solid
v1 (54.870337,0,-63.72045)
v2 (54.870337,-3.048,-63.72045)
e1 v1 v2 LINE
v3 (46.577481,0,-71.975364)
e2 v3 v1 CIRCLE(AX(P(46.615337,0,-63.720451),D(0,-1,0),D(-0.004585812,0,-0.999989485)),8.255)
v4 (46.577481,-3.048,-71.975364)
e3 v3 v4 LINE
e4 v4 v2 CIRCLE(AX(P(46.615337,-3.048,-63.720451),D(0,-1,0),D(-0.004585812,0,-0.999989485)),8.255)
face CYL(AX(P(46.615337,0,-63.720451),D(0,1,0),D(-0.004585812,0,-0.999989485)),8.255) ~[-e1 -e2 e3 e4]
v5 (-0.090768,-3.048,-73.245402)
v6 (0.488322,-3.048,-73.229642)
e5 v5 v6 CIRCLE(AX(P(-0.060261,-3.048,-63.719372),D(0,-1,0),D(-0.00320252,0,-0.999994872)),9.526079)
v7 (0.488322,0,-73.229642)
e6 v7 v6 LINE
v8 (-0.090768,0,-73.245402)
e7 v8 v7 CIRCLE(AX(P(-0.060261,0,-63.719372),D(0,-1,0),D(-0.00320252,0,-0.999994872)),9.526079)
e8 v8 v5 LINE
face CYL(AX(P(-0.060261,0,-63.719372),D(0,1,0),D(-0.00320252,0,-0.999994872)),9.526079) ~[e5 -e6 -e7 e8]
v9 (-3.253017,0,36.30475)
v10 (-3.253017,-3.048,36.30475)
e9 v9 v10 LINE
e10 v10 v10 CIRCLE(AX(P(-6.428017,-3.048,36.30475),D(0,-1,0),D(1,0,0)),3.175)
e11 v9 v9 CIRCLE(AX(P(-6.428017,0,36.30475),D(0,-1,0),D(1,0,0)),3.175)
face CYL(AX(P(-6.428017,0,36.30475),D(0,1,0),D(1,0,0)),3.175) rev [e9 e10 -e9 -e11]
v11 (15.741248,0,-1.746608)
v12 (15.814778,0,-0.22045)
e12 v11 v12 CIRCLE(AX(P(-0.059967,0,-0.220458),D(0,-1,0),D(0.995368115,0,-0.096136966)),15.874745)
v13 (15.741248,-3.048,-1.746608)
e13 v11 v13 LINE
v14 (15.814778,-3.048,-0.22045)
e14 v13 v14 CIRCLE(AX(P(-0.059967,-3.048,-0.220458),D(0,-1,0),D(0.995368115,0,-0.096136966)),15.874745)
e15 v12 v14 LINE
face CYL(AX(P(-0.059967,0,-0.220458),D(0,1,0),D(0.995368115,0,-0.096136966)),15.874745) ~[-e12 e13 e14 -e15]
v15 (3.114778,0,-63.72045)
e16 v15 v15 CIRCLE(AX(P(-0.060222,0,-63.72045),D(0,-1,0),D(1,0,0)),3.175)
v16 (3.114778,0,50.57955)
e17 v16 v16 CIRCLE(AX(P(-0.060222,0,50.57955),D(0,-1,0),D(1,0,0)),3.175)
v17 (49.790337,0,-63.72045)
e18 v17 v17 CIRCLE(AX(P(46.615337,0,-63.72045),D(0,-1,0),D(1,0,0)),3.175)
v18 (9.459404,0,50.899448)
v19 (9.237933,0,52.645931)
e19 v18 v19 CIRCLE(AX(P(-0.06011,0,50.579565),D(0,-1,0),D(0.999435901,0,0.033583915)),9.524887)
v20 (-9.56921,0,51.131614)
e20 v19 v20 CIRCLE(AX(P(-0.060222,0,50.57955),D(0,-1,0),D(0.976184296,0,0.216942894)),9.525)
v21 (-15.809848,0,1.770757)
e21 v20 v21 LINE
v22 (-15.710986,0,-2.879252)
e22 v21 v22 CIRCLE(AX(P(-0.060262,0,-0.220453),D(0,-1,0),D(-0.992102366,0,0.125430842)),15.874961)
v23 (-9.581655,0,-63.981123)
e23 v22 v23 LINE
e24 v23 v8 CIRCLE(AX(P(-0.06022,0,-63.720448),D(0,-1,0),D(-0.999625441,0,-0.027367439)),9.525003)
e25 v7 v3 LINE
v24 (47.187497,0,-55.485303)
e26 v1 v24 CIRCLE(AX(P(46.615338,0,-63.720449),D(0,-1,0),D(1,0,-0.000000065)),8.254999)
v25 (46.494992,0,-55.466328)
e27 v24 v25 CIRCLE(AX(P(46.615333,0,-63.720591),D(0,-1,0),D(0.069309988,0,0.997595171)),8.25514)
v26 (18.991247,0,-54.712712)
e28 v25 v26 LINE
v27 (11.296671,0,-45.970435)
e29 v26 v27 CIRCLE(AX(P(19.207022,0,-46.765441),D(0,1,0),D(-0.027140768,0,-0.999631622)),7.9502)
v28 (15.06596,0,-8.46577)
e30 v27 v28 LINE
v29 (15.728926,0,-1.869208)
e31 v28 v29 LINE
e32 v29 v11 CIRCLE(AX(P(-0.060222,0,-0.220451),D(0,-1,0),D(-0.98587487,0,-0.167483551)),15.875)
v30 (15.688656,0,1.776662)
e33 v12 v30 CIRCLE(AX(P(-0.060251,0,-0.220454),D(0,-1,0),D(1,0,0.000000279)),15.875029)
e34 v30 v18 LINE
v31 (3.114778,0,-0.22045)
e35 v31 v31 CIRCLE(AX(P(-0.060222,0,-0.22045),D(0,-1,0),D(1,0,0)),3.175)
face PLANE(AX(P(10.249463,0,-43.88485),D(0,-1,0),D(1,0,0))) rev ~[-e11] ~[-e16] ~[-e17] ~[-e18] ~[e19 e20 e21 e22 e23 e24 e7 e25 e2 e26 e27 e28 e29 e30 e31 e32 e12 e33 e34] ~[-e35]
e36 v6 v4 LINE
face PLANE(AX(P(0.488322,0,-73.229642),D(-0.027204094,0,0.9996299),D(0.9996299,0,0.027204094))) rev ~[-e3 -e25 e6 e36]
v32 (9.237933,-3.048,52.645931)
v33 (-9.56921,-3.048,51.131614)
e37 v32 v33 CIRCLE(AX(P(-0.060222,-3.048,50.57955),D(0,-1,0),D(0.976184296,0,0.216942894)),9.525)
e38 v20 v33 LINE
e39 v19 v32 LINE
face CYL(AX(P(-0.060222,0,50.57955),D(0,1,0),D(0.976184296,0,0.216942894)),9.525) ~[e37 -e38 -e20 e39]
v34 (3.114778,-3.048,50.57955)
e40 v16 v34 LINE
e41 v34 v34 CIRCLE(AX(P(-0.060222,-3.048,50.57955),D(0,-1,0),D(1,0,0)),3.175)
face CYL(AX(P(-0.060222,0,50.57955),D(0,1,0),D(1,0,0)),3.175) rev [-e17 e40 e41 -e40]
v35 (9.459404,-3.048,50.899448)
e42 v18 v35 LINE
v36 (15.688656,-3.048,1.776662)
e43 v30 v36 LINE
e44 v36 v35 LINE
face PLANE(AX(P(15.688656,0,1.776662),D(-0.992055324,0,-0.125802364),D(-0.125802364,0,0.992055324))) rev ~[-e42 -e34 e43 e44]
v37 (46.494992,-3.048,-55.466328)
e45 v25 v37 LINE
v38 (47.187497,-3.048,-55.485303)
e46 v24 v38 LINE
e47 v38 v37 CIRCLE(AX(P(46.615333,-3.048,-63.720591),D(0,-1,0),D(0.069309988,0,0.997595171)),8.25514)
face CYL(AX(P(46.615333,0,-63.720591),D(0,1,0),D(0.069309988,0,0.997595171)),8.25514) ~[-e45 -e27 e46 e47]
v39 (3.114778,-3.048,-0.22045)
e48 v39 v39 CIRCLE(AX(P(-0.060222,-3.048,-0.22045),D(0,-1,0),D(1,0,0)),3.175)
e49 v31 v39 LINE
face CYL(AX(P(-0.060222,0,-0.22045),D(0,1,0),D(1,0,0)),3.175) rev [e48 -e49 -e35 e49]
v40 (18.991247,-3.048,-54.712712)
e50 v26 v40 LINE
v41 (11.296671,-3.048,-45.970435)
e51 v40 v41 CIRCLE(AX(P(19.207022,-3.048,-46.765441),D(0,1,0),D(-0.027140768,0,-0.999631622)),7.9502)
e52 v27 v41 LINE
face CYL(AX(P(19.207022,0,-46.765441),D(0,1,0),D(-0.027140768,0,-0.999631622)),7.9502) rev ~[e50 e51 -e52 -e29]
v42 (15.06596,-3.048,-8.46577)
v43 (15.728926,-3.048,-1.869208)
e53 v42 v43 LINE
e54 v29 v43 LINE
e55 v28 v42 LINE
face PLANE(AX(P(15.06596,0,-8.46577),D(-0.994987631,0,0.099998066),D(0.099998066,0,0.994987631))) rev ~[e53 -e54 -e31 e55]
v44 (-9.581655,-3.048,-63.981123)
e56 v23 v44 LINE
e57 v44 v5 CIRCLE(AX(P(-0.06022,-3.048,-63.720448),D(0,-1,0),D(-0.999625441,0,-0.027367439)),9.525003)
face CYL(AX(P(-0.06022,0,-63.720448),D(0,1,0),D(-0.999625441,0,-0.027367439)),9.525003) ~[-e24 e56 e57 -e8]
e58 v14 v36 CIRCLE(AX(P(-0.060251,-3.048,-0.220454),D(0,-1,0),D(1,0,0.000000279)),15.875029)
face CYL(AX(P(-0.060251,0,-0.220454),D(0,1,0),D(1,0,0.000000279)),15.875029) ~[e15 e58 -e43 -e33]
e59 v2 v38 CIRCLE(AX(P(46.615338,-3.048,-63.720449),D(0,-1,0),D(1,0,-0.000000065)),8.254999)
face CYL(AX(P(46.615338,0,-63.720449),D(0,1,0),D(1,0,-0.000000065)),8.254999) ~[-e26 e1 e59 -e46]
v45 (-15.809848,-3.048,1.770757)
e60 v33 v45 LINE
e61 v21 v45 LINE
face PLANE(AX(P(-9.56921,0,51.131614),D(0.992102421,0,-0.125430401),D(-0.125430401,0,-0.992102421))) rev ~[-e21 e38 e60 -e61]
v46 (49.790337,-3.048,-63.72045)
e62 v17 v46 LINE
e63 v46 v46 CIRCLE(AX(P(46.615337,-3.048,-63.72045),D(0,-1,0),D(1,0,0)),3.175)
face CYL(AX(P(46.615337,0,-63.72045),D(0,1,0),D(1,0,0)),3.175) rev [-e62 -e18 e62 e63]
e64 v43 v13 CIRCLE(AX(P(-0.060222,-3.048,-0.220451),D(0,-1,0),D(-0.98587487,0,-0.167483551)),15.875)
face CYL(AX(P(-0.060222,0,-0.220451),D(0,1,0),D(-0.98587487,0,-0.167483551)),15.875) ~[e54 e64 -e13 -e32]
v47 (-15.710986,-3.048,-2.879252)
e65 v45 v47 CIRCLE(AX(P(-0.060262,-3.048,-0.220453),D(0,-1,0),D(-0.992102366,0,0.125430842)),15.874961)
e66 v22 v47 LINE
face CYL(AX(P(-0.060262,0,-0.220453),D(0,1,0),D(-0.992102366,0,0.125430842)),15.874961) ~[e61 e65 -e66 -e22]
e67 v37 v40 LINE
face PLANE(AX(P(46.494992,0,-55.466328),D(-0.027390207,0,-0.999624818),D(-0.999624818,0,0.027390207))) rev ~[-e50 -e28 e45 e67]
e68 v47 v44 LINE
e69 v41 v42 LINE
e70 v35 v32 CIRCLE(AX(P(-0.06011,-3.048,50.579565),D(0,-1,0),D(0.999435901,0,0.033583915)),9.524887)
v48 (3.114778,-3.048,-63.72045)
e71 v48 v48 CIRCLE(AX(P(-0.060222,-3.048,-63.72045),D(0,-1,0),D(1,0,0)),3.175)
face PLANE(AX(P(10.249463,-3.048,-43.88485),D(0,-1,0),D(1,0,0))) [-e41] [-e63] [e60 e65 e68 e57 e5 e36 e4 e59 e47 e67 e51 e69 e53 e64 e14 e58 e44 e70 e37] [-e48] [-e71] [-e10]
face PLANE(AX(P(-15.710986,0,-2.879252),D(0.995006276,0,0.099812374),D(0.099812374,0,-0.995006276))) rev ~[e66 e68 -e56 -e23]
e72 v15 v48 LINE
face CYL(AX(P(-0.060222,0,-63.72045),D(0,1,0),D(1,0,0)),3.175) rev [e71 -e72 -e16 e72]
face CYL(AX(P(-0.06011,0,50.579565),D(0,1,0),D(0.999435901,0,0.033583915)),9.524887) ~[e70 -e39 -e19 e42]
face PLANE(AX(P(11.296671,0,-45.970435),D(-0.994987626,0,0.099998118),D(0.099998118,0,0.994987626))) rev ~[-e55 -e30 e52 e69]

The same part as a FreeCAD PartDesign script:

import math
import FreeCAD as App
import Part
import Sketcher
Q = App.Units.Quantity

doc = App.newDocument("Part")
params = doc.addObject("Spreadsheet::Sheet", "Params")
for row, (alias, value) in enumerate([
    ("sketch1_diameter", "0.25 in"),
    ("sketch1_diameter2", "0.25 in"),
    ("sketch1_diameter3", "0.25 in"),
    ("sketch1_diameter4", "0.25 in"),
    ("sketch1_diameter5", "0.25 in"),
    ("pad1_length", "0.12 in"),
], start=1):
    params.set(f"A{row}", alias)
    params.set(f"B{row}", "=" + value)
    params.setAlias(f"B{row}", alias)

body = doc.addObject("PartDesign::Body", "Body")

# Sketch on XZ plane
sketch1 = doc.addObject("Sketcher::SketchObject", "Sketch")
body.addObject(sketch1)
sketch1.AttachmentSupport = (doc.XZ_Plane, [""])
sketch1.MapMode = "FlatFace"
sketch1.addGeometry(Part.LineSegment(App.Vector(15.06596, -8.46577, 0), App.Vector(15.728926, -1.869208, 0)), False)
sketch1.addGeometry(Part.ArcOfCircle(Part.Circle(App.Vector(-0.060222, -0.220451, 0), App.Vector(0, 0, 1), 15.875), math.radians(-5.961417), math.radians(-5.516701)), False)
sketch1.addGeometry(Part.ArcOfCircle(Part.Circle(App.Vector(-0.059967, -0.220458, 0), App.Vector(0, 0, 1), 15.874745), math.radians(-5.516763), math.radians(0.000029)), False)
sketch1.addGeometry(Part.ArcOfCircle(Part.Circle(App.Vector(-0.060251, -0.220454, 0), App.Vector(0, 0, 1), 15.875029), math.radians(0.000016), math.radians(7.227095)), False)
sketch1.addGeometry(Part.LineSegment(App.Vector(15.688656, 1.776662, 0), App.Vector(9.459404, 50.899448, 0)), False)
sketch1.addGeometry(Part.ArcOfCircle(Part.Circle(App.Vector(-0.06011, 50.579565, 0), App.Vector(0, 0, 1), 9.524887), math.radians(1.924578), math.radians(12.529595)), False)
sketch1.addGeometry(Part.ArcOfCircle(Part.Circle(App.Vector(-0.060222, 50.57955, 0), App.Vector(0, 0, 1), 9.525), math.radians(12.529538), math.radians(176.677304)), False)
sketch1.addGeometry(Part.LineSegment(App.Vector(-9.56921, 51.131614, 0), App.Vector(-15.809848, 1.770757, 0)), False)
sketch1.addGeometry(Part.ArcOfCircle(Part.Circle(App.Vector(-0.060262, -0.220453, 0), App.Vector(0, 0, 1), 15.874961), math.radians(172.794363), math.radians(189.641556)), False)
sketch1.addGeometry(Part.LineSegment(App.Vector(-15.710986, -2.879252, 0), App.Vector(-9.581655, -63.981123, 0)), False)
sketch1.addGeometry(Part.ArcOfCircle(Part.Circle(App.Vector(-0.06022, -63.720448, 0), App.Vector(0, 0, 1), 9.525003), math.radians(-178.431765), math.radians(-90.183757)), False)
sketch1.addGeometry(Part.ArcOfCircle(Part.Circle(App.Vector(-0.060261, -63.719372, 0), App.Vector(0, 0, 1), 9.526079), math.radians(-90.183491), math.radians(-86.698656)), False)
sketch1.addGeometry(Part.LineSegment(App.Vector(0.488322, -73.229642, 0), App.Vector(46.577481, -71.975364, 0)), False)
sketch1.addGeometry(Part.ArcOfCircle(Part.Circle(App.Vector(46.615337, -63.720451, 0), App.Vector(0, 0, 1), 8.255), math.radians(-90.262749), math.radians(0.000005)), False)
sketch1.addGeometry(Part.ArcOfCircle(Part.Circle(App.Vector(46.615338, -63.720449, 0), App.Vector(0, 0, 1), 8.254999), math.radians(-0.000004), math.radians(86.02561)), False)
sketch1.addGeometry(Part.ArcOfCircle(Part.Circle(App.Vector(46.615333, -63.720591, 0), App.Vector(0, 0, 1), 8.25514), math.radians(86.025644), math.radians(90.835273)), False)
sketch1.addGeometry(Part.LineSegment(App.Vector(46.494992, -55.466328, 0), App.Vector(18.991247, -54.712712, 0)), False)
sketch1.addGeometry(Part.ArcOfCircle(Part.Circle(App.Vector(19.207022, -46.765441, 0), App.Vector(0, 0, 1), 7.9502), math.radians(174.260933), math.radians(268.444758)), False)
sketch1.addGeometry(Part.LineSegment(App.Vector(11.296671, -45.970435, 0), App.Vector(15.06596, -8.46577, 0)), False)
sketch1.addGeometry(Part.Circle(App.Vector(-0.060222, -63.72045, 0), App.Vector(0, 0, 1), 3.175), False)
sketch1.addGeometry(Part.Circle(App.Vector(46.615337, -63.72045, 0), App.Vector(0, 0, 1), 3.175), False)
sketch1.addGeometry(Part.Circle(App.Vector(-0.060222, -0.22045, 0), App.Vector(0, 0, 1), 3.175), False)
sketch1.addGeometry(Part.Circle(App.Vector(-6.428017, 36.30475, 0), App.Vector(0, 0, 1), 3.175), False)
sketch1.addGeometry(Part.Circle(App.Vector(-0.060222, 50.57955, 0), App.Vector(0, 0, 1), 3.175), False)
sketch1.addConstraint(Sketcher.Constraint("Coincident", 0, 2, 1, 1))
sketch1.addConstraint(Sketcher.Constraint("Coincident", 1, 2, 2, 1))
sketch1.addConstraint(Sketcher.Constraint("Coincident", 2, 2, 3, 1))
sketch1.addConstraint(Sketcher.Constraint("Coincident", 3, 2, 4, 1))
sketch1.addConstraint(Sketcher.Constraint("Coincident", 4, 2, 5, 1))
sketch1.addConstraint(Sketcher.Constraint("Coincident", 5, 2, 6, 1))
sketch1.addConstraint(Sketcher.Constraint("Coincident", 6, 2, 7, 1))
sketch1.addConstraint(Sketcher.Constraint("Coincident", 7, 2, 8, 1))
sketch1.addConstraint(Sketcher.Constraint("Coincident", 8, 2, 9, 1))
sketch1.addConstraint(Sketcher.Constraint("Coincident", 9, 2, 10, 1))
sketch1.addConstraint(Sketcher.Constraint("Coincident", 10, 2, 11, 1))
sketch1.addConstraint(Sketcher.Constraint("Coincident", 11, 2, 12, 1))
sketch1.addConstraint(Sketcher.Constraint("Coincident", 12, 2, 13, 1))
sketch1.addConstraint(Sketcher.Constraint("Coincident", 13, 2, 14, 1))
sketch1.addConstraint(Sketcher.Constraint("Coincident", 14, 2, 15, 1))
sketch1.addConstraint(Sketcher.Constraint("Coincident", 15, 2, 16, 1))
sketch1.addConstraint(Sketcher.Constraint("Coincident", 16, 2, 17, 2))
sketch1.addConstraint(Sketcher.Constraint("Coincident", 17, 1, 18, 1))
sketch1.addConstraint(Sketcher.Constraint("Coincident", 18, 2, 0, 1))
sketch1.addConstraint(Sketcher.Constraint("Coincident", 14, 3, 13, 3))
sketch1.addConstraint(Sketcher.Constraint("Coincident", 19, 3, 10, 3))
sketch1.addConstraint(Sketcher.Constraint("Coincident", 20, 3, 13, 3))
sketch1.addConstraint(Sketcher.Constraint("Coincident", 21, 3, 1, 3))
sketch1.addConstraint(Sketcher.Constraint("Coincident", 23, 3, 6, 3))
sketch1.addConstraint(Sketcher.Constraint("Diameter", 19, Q("0.25 in")))
sketch1.addConstraint(Sketcher.Constraint("Diameter", 20, Q("0.25 in")))
sketch1.addConstraint(Sketcher.Constraint("Diameter", 21, Q("0.25 in")))
sketch1.addConstraint(Sketcher.Constraint("Diameter", 22, Q("0.25 in")))
sketch1.addConstraint(Sketcher.Constraint("Diameter", 23, Q("0.25 in")))
sketch1.addConstraint(Sketcher.Constraint("Radius", 1, Q("0.625 in")))
sketch1.addConstraint(Sketcher.Constraint("Radius", 6, Q("0.375 in")))
sketch1.addConstraint(Sketcher.Constraint("Radius", 10, Q("0.3750001 in")))
sketch1.addConstraint(Sketcher.Constraint("Radius", 13, Q("0.325 in")))
sketch1.addConstraint(Sketcher.Constraint("Radius", 17, Q("0.313 in")))
sketch1.addConstraint(Sketcher.Constraint("DistanceY", 1, 3, 6, 3, Q("2 in")))
sketch1.addConstraint(Sketcher.Constraint("DistanceY", 3, 3, 6, 3, Q("2.0000002 in")))
sketch1.addConstraint(Sketcher.Constraint("DistanceY", 8, 3, 6, 3, Q("2.0000001 in")))
sketch1.addConstraint(Sketcher.Constraint("DistanceY", 10, 3, 8, 3, Q("2.4999998 in")))
sketch1.addConstraint(Sketcher.Constraint("DistanceY", 13, 3, 1, 3, Q("2.5 in")))
sketch1.addConstraint(Sketcher.Constraint("Distance", 18, Q("1.484 in")))
sketch1.addConstraint(Sketcher.Constraint("Radius", 3, 15.875029))
sketch1.addConstraint(Sketcher.Constraint("Radius", 8, 15.874961))
sketch1.addConstraint(Sketcher.Constraint("Radius", 11, 9.526079))
sketch1.addConstraint(Sketcher.Constraint("Radius", 15, 8.25514))
sketch1.addConstraint(Sketcher.Constraint("DistanceY", 22, 3, 6, 3, Q("0.562 in")))
sketch1.addConstraint(Sketcher.Constraint("DistanceX", 21, 3, 2, 2, Q("0.625 in")))
sketch1.addConstraint(Sketcher.Constraint("DistanceX", 15, 3, 13, 2, Q("0.3250001 in")))
sketch1.addConstraint(Sketcher.Constraint("Radius", 2, 15.874745))
sketch1.addConstraint(Sketcher.Constraint("Radius", 5, 9.524887))
sketch1.addConstraint(Sketcher.Constraint("DistanceX", 11, 3, 14, 3, 46.675599))
sketch1.addConstraint(Sketcher.Constraint("DistanceX", 2, 3, 15, 3, 46.675301))
sketch1.addConstraint(Sketcher.Constraint("DistanceY", 0, 2, 1, 2, 0.1226))
sketch1.addConstraint(Sketcher.Constraint("DistanceX", 3, 3, 1, 2, 15.801499))
sketch1.addConstraint(Sketcher.Constraint("DistanceY", 23, 3, 4, 2, 0.319898))
sketch1.addConstraint(Sketcher.Constraint("DistanceX", 6, 2, 5, 3, 9.5091))
sketch1.addConstraint(Sketcher.Constraint("DistanceY", 8, 2, 8, 3, 2.658799))
sketch1.addConstraint(Sketcher.Constraint("Distance", 7, 49.753791))
sketch1.addConstraint(Sketcher.Constraint("Distance", 9, 61.408528))
sketch1.addConstraint(Sketcher.Constraint("DistanceY", 1, 3, -1, 1, 0.220451))
sketch1.addConstraint(Sketcher.Constraint("DistanceX", 3, 3, -1, 1, 0.060251))
sketch1.addConstraint(Sketcher.Constraint("DistanceX", 5, 3, -1, 1, 0.06011))
sketch1.addConstraint(Sketcher.Constraint("DistanceX", 8, 3, -1, 1, 0.060262))
sketch1.addConstraint(Sketcher.Constraint("DistanceX", 10, 3, -1, 1, 0.06022))
sketch1.addConstraint(Sketcher.Constraint("DistanceX", -1, 1, 17, 3, 19.207022))
sketch1.addConstraint(Sketcher.Constraint("DistanceY", 17, 3, -1, 1, 46.765441))
sketch1.addConstraint(Sketcher.Constraint("DistanceX", 23, 3, -1, 1, 0.060222))
sketch1.addConstraint(Sketcher.Constraint("DistanceY", 2, 2, -1, 1, 0.22045))
sketch1.addConstraint(Sketcher.Constraint("DistanceY", -1, 1, 3, 2, 1.776662))
sketch1.addConstraint(Sketcher.Constraint("DistanceY", -1, 1, 5, 2, 52.645931))
sketch1.addConstraint(Sketcher.Constraint("DistanceX", 10, 2, -1, 1, 0.090768))
sketch1.addConstraint(Sketcher.Constraint("DistanceX", -1, 1, 12, 2, 46.577481))
sketch1.addConstraint(Sketcher.Constraint("DistanceY", 13, 2, -1, 1, 63.72045))
sketch1.addConstraint(Sketcher.Constraint("DistanceY", 15, 2, -1, 1, 55.466328))
sketch1.addConstraint(Sketcher.Constraint("DistanceX", -1, 1, 17, 1, 11.296671))
sketch1.addConstraint(Sketcher.Constraint("DistanceX", -1, 1, 18, 2, 15.06596))
sketch1.addConstraint(Sketcher.Constraint("DistanceX", 22, 3, 4, 2, 15.887421))
sketch1.addConstraint(Sketcher.Constraint("DistanceX", 10, 2, 11, 2, 0.57909))
sketch1.addConstraint(Sketcher.Constraint("DistanceX", 14, 3, 14, 2, 0.572159))
sketch1.addConstraint(Sketcher.Constraint("DistanceY", 16, 2, 17, 3, 7.947271))
sketch1.setExpression("Constraints[24]", "Params.sketch1_diameter")
sketch1.setExpression("Constraints[25]", "Params.sketch1_diameter2")
sketch1.setExpression("Constraints[26]", "Params.sketch1_diameter3")
sketch1.setExpression("Constraints[27]", "Params.sketch1_diameter4")
sketch1.setExpression("Constraints[28]", "Params.sketch1_diameter5")
pad1 = doc.addObject("PartDesign::Pad", "Pad")
body.addObject(pad1)
pad1.Profile = sketch1
pad1.setExpression("Length", "Params.pad1_length")

doc.recompute()
